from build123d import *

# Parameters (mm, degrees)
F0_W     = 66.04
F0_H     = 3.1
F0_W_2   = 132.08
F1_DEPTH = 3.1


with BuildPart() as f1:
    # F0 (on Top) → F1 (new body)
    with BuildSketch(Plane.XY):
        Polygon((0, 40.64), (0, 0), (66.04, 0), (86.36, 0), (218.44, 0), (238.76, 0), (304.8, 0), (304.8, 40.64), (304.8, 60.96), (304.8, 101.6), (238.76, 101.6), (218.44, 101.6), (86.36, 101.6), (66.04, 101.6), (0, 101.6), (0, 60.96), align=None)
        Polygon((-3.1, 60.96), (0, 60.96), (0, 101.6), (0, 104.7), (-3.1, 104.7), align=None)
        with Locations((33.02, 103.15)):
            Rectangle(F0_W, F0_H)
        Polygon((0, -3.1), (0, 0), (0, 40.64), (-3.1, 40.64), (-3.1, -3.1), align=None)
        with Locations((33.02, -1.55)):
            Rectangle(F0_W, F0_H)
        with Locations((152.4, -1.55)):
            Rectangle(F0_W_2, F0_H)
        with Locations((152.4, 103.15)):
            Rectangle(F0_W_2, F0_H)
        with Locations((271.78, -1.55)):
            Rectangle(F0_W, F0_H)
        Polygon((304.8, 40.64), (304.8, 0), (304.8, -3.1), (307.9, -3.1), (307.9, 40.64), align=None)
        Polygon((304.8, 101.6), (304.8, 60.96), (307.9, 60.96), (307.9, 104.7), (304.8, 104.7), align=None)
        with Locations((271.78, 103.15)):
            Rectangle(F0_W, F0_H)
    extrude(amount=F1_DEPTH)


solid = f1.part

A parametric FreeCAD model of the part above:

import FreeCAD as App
import Part
import Sketcher

V = App.Vector
Q = App.Units.Quantity

doc = App.newDocument("Part")
params = doc.addObject("Spreadsheet::Sheet", "Params")
for row, (alias, value) in enumerate([
    ("sketch1_width", "0.8 in"),
    ("sketch1_width2", "5.2 in"),
    ("pad1_length", "3.1 mm"),
], start=1):
    params.set(f"A{row}", alias)
    params.set(f"B{row}", "=" + value)
    params.setAlias(f"B{row}", alias)

body = doc.addObject("PartDesign::Body", "Body")

sketch1 = body.newObject("Sketcher::SketchObject", "Sketch")
sketch1.AttachmentSupport = (doc.getObject("XY_Plane"), [""])
sketch1.MapMode = "FlatFace"
sketch1.addGeometry([
    Part.LineSegment(V(66, 0, 0), V(86.4, 0, 0)),
    Part.LineSegment(V(86.4, 0, 0), V(86.4, -3.1, 0)),
    Part.LineSegment(V(86.4, -3.1, 0), V(218.4, -3.1, 0)),
    Part.LineSegment(V(218.4, -3.1, 0), V(218.4, 0, 0)),
    Part.LineSegment(V(218.4, 0, 0), V(238.8, 0, 0)),
    Part.LineSegment(V(238.8, 0, 0), V(238.8, -3.1, 0)),
    Part.LineSegment(V(238.8, -3.1, 0), V(307.9, -3.1, 0)),
    Part.LineSegment(V(307.9, -3.1, 0), V(307.9, 40.6, 0)),
    Part.LineSegment(V(307.9, 40.6, 0), V(304.8, 40.6, 0)),
    Part.LineSegment(V(304.8, 40.6, 0), V(304.8, 61, 0)),
    Part.LineSegment(V(304.8, 61, 0), V(307.9, 61, 0)),
    Part.LineSegment(V(307.9, 61, 0), V(307.9, 104.7, 0)),
    Part.LineSegment(V(307.9, 104.7, 0), V(238.8, 104.7, 0)),
    Part.LineSegment(V(238.8, 104.7, 0), V(238.8, 101.6, 0)),
    Part.LineSegment(V(238.8, 101.6, 0), V(218.4, 101.6, 0)),
    Part.LineSegment(V(218.4, 101.6, 0), V(218.4, 104.7, 0)),
    Part.LineSegment(V(218.4, 104.7, 0), V(86.4, 104.7, 0)),
    Part.LineSegment(V(86.4, 104.7, 0), V(86.4, 101.6, 0)),
    Part.LineSegment(V(86.4, 101.6, 0), V(66, 101.6, 0)),
    Part.LineSegment(V(66, 101.6, 0), V(66, 104.7, 0)),
    Part.LineSegment(V(66, 104.7, 0), V(-3.1, 104.7, 0)),
    Part.LineSegment(V(-3.1, 104.7, 0), V(-3.1, 61, 0)),
    Part.LineSegment(V(-3.1, 61, 0), V(0, 61, 0)),
    Part.LineSegment(V(0, 61, 0), V(0, 40.6, 0)),
    Part.LineSegment(V(0, 40.6, 0), V(-3.1, 40.6, 0)),
    Part.LineSegment(V(-3.1, 40.6, 0), V(-3.1, -3.1, 0)),
    Part.LineSegment(V(-3.1, -3.1, 0), V(66, -3.1, 0)),
    Part.LineSegment(V(66, -3.1, 0), V(66, 0, 0)),
], False)
sketch1.addConstraint([
    Sketcher.Constraint("Coincident", 0, 2, 1, 1),
    Sketcher.Constraint("Coincident", 1, 2, 2, 1),
    Sketcher.Constraint("Coincident", 2, 2, 3, 1),
    Sketcher.Constraint("Coincident", 3, 2, 4, 1),
    Sketcher.Constraint("Coincident", 4, 2, 5, 1),
    Sketcher.Constraint("Coincident", 5, 2, 6, 1),
    Sketcher.Constraint("Coincident", 6, 2, 7, 1),
    Sketcher.Constraint("Coincident", 7, 2, 8, 1),
    Sketcher.Constraint("Coincident", 8, 2, 9, 1),
    Sketcher.Constraint("Coincident", 9, 2, 10, 1),
    Sketcher.Constraint("Coincident", 10, 2, 11, 1),
    Sketcher.Constraint("Coincident", 11, 2, 12, 1),
    Sketcher.Constraint("Coincident", 12, 2, 13, 1),
    Sketcher.Constraint("Coincident", 13, 2, 14, 1),
    Sketcher.Constraint("Coincident", 14, 2, 15, 1),
    Sketcher.Constraint("Coincident", 15, 2, 16, 1),
    Sketcher.Constraint("Coincident", 16, 2, 17, 1),
    Sketcher.Constraint("Coincident", 17, 2, 18, 1),
    Sketcher.Constraint("Coincident", 18, 2, 19, 1),
    Sketcher.Constraint("Coincident", 19, 2, 20, 1),
    Sketcher.Constraint("Coincident", 20, 2, 21, 1),
    Sketcher.Constraint("Coincident", 21, 2, 22, 1),
    Sketcher.Constraint("Coincident", 22, 2, 23, 1),
    Sketcher.Constraint("Coincident", 23, 2, 24, 1),
    Sketcher.Constraint("Coincident", 24, 2, 25, 1),
    Sketcher.Constraint("Coincident", 25, 2, 26, 1),
    Sketcher.Constraint("Coincident", 26, 2, 27, 1),
    Sketcher.Constraint("Coincident", 27, 2, 0, 1),
    Sketcher.Constraint("Horizontal", 0),
    Sketcher.Constraint("Vertical", 1),
    Sketcher.Constraint("Horizontal", 2),
    Sketcher.Constraint("Vertical", 3),
    Sketcher.Constraint("Horizontal", 4),
    Sketcher.Constraint("Vertical", 5),
    Sketcher.Constraint("Horizontal", 6),
    Sketcher.Constraint("Vertical", 7),
    Sketcher.Constraint("Horizontal", 8),
    Sketcher.Constraint("Vertical", 9),
    Sketcher.Constraint("Horizontal", 10),
    Sketcher.Constraint("Vertical", 11),
    Sketcher.Constraint("Horizontal", 12),
    Sketcher.Constraint("Vertical", 13),
    Sketcher.Constraint("Horizontal", 14),
    Sketcher.Constraint("Vertical", 15),
    Sketcher.Constraint("Horizontal", 16),
    Sketcher.Constraint("Vertical", 17),
    Sketcher.Constraint("Horizontal", 18),
    Sketcher.Constraint("Vertical", 19),
    Sketcher.Constraint("Horizontal", 20),
    Sketcher.Constraint("Vertical", 21),
    Sketcher.Constraint("Horizontal", 22),
    Sketcher.Constraint("Vertical", 23),
    Sketcher.Constraint("Horizontal", 24),
    Sketcher.Constraint("Vertical", 25),
    Sketcher.Constraint("Horizontal", 26),
    Sketcher.Constraint("Vertical", 27),
    Sketcher.Constraint("PointOnObject", 0, 2, -1),
    Sketcher.Constraint("PointOnObject", 3, 2, -1),
    Sketcher.Constraint("PointOnObject", 22, 2, -2),
    Sketcher.Constraint("Horizontal", 2, 2, 5, 2),
    Sketcher.Constraint("Horizontal", 12, 2, 15, 2),
    Sketcher.Constraint("Horizontal", 14, 2, 17, 2),
    Sketcher.Constraint("Horizontal", 16, 2, 19, 2),
    Sketcher.Constraint("Horizontal", 10, 2, 21, 2),
    Sketcher.Constraint("Horizontal", 8, 2, 23, 2),
    Sketcher.Constraint("Horizontal", 6, 2, 25, 2),
    Sketcher.Constraint("Vertical", 7, 2, 10, 2),
    Sketcher.Constraint("Vertical", 5, 2, 12, 2),
    Sketcher.Constraint("Vertical", 3, 2, 14, 2),
    Sketcher.Constraint("Vertical", 1, 2, 16, 2),
    Sketcher.Constraint("Vertical", 21, 2, 24, 2),
    Sketcher.Constraint("Vertical", 19, 2, 26, 2),
    Sketcher.Constraint("Equal", 0, 4),
    Sketcher.Constraint("Equal", 12, 20),
    Sketcher.Constraint("Equal", 10, 22),
    Sketcher.Constraint("Equal", 24, 1),
    Sketcher.Constraint("Equal", 18, 9),
    Sketcher.Constraint("Equal", 7, 11),
    Sketcher.Constraint("Equal", 5, 13),
    Sketcher.Constraint("DistanceX", 0, 1, 0, 2, Q("0.8 in")),
    Sketcher.Constraint("DistanceX", 2, 1, 2, 2, Q("5.2 in")),
    Sketcher.Constraint("DistanceX", -1, 1, 8, 2, Q("12 in")),
    Sketcher.Constraint("DistanceY", -1, 1, 13, 2, Q("4 in")),
    Sketcher.Constraint("DistanceX", 6, 1, 6, 2, 69.14),
])
sketch1.setExpression("Constraints[79]", "Params.sketch1_width")
sketch1.setExpression("Constraints[80]", "Params.sketch1_width2")
pad1 = body.newObject("PartDesign::Pad", "Pad")
pad1.Profile = sketch1
pad1.setExpression("Length", "Params.pad1_length")

doc.recompute()
